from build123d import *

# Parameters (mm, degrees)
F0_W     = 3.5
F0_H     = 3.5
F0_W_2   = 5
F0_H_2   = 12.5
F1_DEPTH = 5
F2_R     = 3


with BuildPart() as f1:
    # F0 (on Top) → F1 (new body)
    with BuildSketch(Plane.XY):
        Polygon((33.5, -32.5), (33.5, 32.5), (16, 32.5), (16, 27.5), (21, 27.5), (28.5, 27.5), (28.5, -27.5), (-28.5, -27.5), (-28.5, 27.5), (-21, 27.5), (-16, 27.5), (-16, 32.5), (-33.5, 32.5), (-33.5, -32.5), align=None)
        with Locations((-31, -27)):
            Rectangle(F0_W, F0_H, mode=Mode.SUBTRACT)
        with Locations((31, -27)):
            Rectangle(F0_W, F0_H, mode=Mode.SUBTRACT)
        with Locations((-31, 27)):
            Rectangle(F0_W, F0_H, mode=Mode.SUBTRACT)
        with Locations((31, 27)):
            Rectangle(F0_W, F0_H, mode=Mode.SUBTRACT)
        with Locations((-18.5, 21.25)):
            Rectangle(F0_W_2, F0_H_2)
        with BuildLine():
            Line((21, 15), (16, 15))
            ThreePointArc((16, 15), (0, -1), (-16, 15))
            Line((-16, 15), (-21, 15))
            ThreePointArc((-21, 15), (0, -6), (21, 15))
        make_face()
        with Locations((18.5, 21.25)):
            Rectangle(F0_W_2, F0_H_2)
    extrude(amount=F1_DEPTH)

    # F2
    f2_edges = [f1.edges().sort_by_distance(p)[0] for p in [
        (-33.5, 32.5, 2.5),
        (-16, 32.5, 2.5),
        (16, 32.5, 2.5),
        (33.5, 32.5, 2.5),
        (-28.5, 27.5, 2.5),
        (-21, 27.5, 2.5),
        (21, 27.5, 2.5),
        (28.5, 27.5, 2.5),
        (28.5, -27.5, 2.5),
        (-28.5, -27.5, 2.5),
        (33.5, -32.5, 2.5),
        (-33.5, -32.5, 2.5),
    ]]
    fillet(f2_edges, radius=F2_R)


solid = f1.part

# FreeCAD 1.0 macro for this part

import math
import FreeCAD as App
import Part
import Sketcher

V = App.Vector
Q = App.Units.Quantity


def edges_at(feature, points):
    """Names of the edges that pass closest to the given points."""
    edges = feature.Shape.Edges
    near = lambda p: min(range(len(edges)), key=lambda i: edges[i].distToShape(Part.Vertex(*p))[0])
    return sorted({f"Edge{near(p) + 1}" for p in points})


def add_polygon(sketch, points):
    """Adds a closed chain of lines whose ends are joined by coincident constraints."""
    first, n = sketch.GeometryCount, len(points)
    for a, b in zip(points, points[1:] + points[:1]):
        sketch.addGeometry(Part.LineSegment(App.Vector(*a, 0), App.Vector(*b, 0)), False)
    for i in range(n):
        sketch.addConstraint(Sketcher.Constraint("Coincident", first + i, 2, first + (i + 1) % n, 1))

doc = App.newDocument("Part")
params = doc.addObject("Spreadsheet::Sheet", "Params")
for row, (alias, value) in enumerate([
    ("sketch1_radius", "16 mm"),
    ("sketch1_radius2", "21 mm"),
    ("sketch1_width", "67 mm"),
    ("sketch1_width2", "57 mm"),
    ("sketch1_height", "65 mm"),
    ("pad1_length", "5 mm"),
    ("fillet_radius", "3 mm"),
], start=1):
    params.set(f"A{row}", alias)
    params.set(f"B{row}", "=" + value)
    params.setAlias(f"B{row}", alias)

body = doc.addObject("PartDesign::Body", "Body")

sketch1 = body.newObject("Sketcher::SketchObject", "Sketch")
sketch1.AttachmentSupport = (doc.getObject("XY_Plane"), [""])
sketch1.MapMode = "FlatFace"
sketch1.addGeometry(Part.LineSegment(V(33.5, -32.5, 0), V(33.5, 32.5, 0)), False)
sketch1.addGeometry(Part.LineSegment(V(33.5, 32.5, 0), V(16, 32.5, 0)), False)
sketch1.addGeometry(Part.LineSegment(V(16, 32.5, 0), V(16, 15, 0)), False)
sketch1.addGeometry(Part.ArcOfCircle(Part.Circle(V(0, 15, 0), V(0, 0, 1), 16), math.radians(180), math.radians(360)), False)
sketch1.addGeometry(Part.LineSegment(V(-16, 15, 0), V(-16, 32.5, 0)), False)
sketch1.addGeometry(Part.LineSegment(V(-16, 32.5, 0), V(-33.5, 32.5, 0)), False)
sketch1.addGeometry(Part.LineSegment(V(-33.5, 32.5, 0), V(-33.5, -32.5, 0)), False)
sketch1.addGeometry(Part.LineSegment(V(-33.5, -32.5, 0), V(33.5, -32.5, 0)), False)
sketch1.addGeometry(Part.LineSegment(V(21, 27.5, 0), V(28.5, 27.5, 0)), False)
sketch1.addGeometry(Part.LineSegment(V(28.5, 27.5, 0), V(28.5, -27.5, 0)), False)
sketch1.addGeometry(Part.LineSegment(V(28.5, -27.5, 0), V(-28.5, -27.5, 0)), False)
sketch1.addGeometry(Part.LineSegment(V(-28.5, -27.5, 0), V(-28.5, 27.5, 0)), False)
sketch1.addGeometry(Part.LineSegment(V(-28.5, 27.5, 0), V(-21, 27.5, 0)), False)
sketch1.addGeometry(Part.LineSegment(V(-21, 27.5, 0), V(-21, 15, 0)), False)
sketch1.addGeometry(Part.ArcOfCircle(Part.Circle(V(0, 15, 0), V(0, 0, 1), 21), math.radians(180), math.radians(360)), False)
sketch1.addGeometry(Part.LineSegment(V(21, 15, 0), V(21, 27.5, 0)), False)
add_polygon(sketch1, [(-29.2, -28.8), (-32.8, -28.8), (-32.8, -25.2), (-29.2, -25.2)])
add_polygon(sketch1, [(32.8, -28.8), (29.2, -28.8), (29.2, -25.2), (32.8, -25.2)])
add_polygon(sketch1, [(-29.2, 25.2), (-32.8, 25.2), (-32.8, 28.8), (-29.2, 28.8)])
add_polygon(sketch1, [(32.8, 25.2), (29.2, 25.2), (29.2, 28.8), (32.8, 28.8)])
sketch1.addConstraint(Sketcher.Constraint("Coincident", 0, 2, 1, 1))
sketch1.addConstraint(Sketcher.Constraint("Coincident", 1, 2, 2, 1))
sketch1.addConstraint(Sketcher.Constraint("Tangent", 2, 2, 3, 2))
sketch1.addConstraint(Sketcher.Constraint("Tangent", 3, 1, 4, 1))
sketch1.addConstraint(Sketcher.Constraint("Coincident", 4, 2, 5, 1))
sketch1.addConstraint(Sketcher.Constraint("Coincident", 5, 2, 6, 1))
sketch1.addConstraint(Sketcher.Constraint("Coincident", 6, 2, 7, 1))
sketch1.addConstraint(Sketcher.Constraint("Coincident", 7, 2, 0, 1))
sketch1.addConstraint(Sketcher.Constraint("Coincident", 8, 2, 9, 1))
sketch1.addConstraint(Sketcher.Constraint("Coincident", 9, 2, 10, 1))
sketch1.addConstraint(Sketcher.Constraint("Coincident", 10, 2, 11, 1))
sketch1.addConstraint(Sketcher.Constraint("Coincident", 11, 2, 12, 1))
sketch1.addConstraint(Sketcher.Constraint("Coincident", 12, 2, 13, 1))
sketch1.addConstraint(Sketcher.Constraint("Tangent", 13, 2, 14, 1))
sketch1.addConstraint(Sketcher.Constraint("Tangent", 14, 2, 15, 1))
sketch1.addConstraint(Sketcher.Constraint("Coincident", 15, 2, 8, 1))
sketch1.addConstraint(Sketcher.Constraint("Vertical", 0))
sketch1.addConstraint(Sketcher.Constraint("Horizontal", 1))
sketch1.addConstraint(Sketcher.Constraint("Vertical", 2))
sketch1.addConstraint(Sketcher.Constraint("Vertical", 4))
sketch1.addConstraint(Sketcher.Constraint("Horizontal", 5))
sketch1.addConstraint(Sketcher.Constraint("Vertical", 6))
sketch1.addConstraint(Sketcher.Constraint("Horizontal", 7))
sketch1.addConstraint(Sketcher.Constraint("Horizontal", 8))
sketch1.addConstraint(Sketcher.Constraint("Vertical", 9))
sketch1.addConstraint(Sketcher.Constraint("Horizontal", 10))
sketch1.addConstraint(Sketcher.Constraint("Vertical", 11))
sketch1.addConstraint(Sketcher.Constraint("Horizontal", 12))
sketch1.addConstraint(Sketcher.Constraint("Vertical", 13))
sketch1.addConstraint(Sketcher.Constraint("Vertical", 15))
sketch1.addConstraint(Sketcher.Constraint("Horizontal", 16))
sketch1.addConstraint(Sketcher.Constraint("Vertical", 17))
sketch1.addConstraint(Sketcher.Constraint("Horizontal", 18))
sketch1.addConstraint(Sketcher.Constraint("Vertical", 19))
sketch1.addConstraint(Sketcher.Constraint("Horizontal", 20))
sketch1.addConstraint(Sketcher.Constraint("Vertical", 21))
sketch1.addConstraint(Sketcher.Constraint("Horizontal", 22))
sketch1.addConstraint(Sketcher.Constraint("Vertical", 23))
sketch1.addConstraint(Sketcher.Constraint("Horizontal", 24))
sketch1.addConstraint(Sketcher.Constraint("Vertical", 25))
sketch1.addConstraint(Sketcher.Constraint("Horizontal", 26))
sketch1.addConstraint(Sketcher.Constraint("Vertical", 27))
sketch1.addConstraint(Sketcher.Constraint("Horizontal", 28))
sketch1.addConstraint(Sketcher.Constraint("Vertical", 29))
sketch1.addConstraint(Sketcher.Constraint("Horizontal", 30))
sketch1.addConstraint(Sketcher.Constraint("Vertical", 31))
sketch1.addConstraint(Sketcher.Constraint("Coincident", 14, 3, 3, 3))
sketch1.addConstraint(Sketcher.Constraint("Symmetric", 0, 2, 6, 2, -1, 1))
sketch1.addConstraint(Sketcher.Constraint("Symmetric", 8, 2, 10, 2, -1, 1))
sketch1.addConstraint(Sketcher.Constraint("Symmetric", 22, 2, 24, 2, -1, 1))
sketch1.addConstraint(Sketcher.Constraint("Symmetric", 20, 2, 26, 2, -1, 1))
sketch1.addConstraint(Sketcher.Constraint("Symmetric", 18, 2, 28, 2, -1, 1))
sketch1.addConstraint(Sketcher.Constraint("Symmetric", 16, 2, 30, 2, -1, 1))
sketch1.addConstraint(Sketcher.Constraint("Symmetric", 1, 2, 4, 2, -2))
sketch1.addConstraint(Sketcher.Constraint("Symmetric", 19, 2, 20, 2, -2))
sketch1.addConstraint(Sketcher.Constraint("Symmetric", 17, 2, 22, 2, -2))
sketch1.addConstraint(Sketcher.Constraint("Horizontal", 8, 2, 11, 2))
sketch1.addConstraint(Sketcher.Constraint("Equal", 5, 2))
sketch1.addConstraint(Sketcher.Constraint("Equal", 30, 17))
sketch1.addConstraint(Sketcher.Constraint("Radius", 3, Q("16 mm")))
sketch1.addConstraint(Sketcher.Constraint("Radius", 14, Q("21 mm")))
sketch1.addConstraint(Sketcher.Constraint("DistanceX", 7, 1, 7, 2, Q("67 mm")))
sketch1.addConstraint(Sketcher.Constraint("DistanceX", 10, 2, 10, 1, Q("57 mm")))
sketch1.addConstraint(Sketcher.Constraint("DistanceY", 0, 1, 0, 2, Q("65 mm")))
sketch1.addConstraint(Sketcher.Constraint("DistanceY", 9, 2, 9, 1, Q("55 mm")))
sketch1.addConstraint(Sketcher.Constraint("DistanceX", 16, 2, 16, 1, Q("3.5 mm")))
sketch1.addConstraint(Sketcher.Constraint("DistanceX", 16, 2, -1, 1, Q("32.75 mm")))
sketch1.addConstraint(Sketcher.Constraint("DistanceY", 16, 2, -1, 1, Q("28.75 mm")))
sketch1.setExpression("Constraints[75]", "Params.sketch1_radius")
sketch1.setExpression("Constraints[76]", "Params.sketch1_radius2")
sketch1.setExpression("Constraints[77]", "Params.sketch1_width")
sketch1.setExpression("Constraints[78]", "Params.sketch1_width2")
sketch1.setExpression("Constraints[79]", "Params.sketch1_height")
pad1 = body.newObject("PartDesign::Pad", "Pad")
pad1.Profile = sketch1
pad1.setExpression("Length", "Params.pad1_length")
doc.recompute()

fillet = body.newObject("PartDesign::Fillet", "Fillet")
fillet.Base = (pad1, edges_at(pad1, [
    (-33.5, 32.5, 2.5),
    (-16, 32.5, 2.5),
    (16, 32.5, 2.5),
    (33.5, 32.5, 2.5),
    (-28.5, 27.5, 2.5),
    (-21, 27.5, 2.5),
    (21, 27.5, 2.5),
    (28.5, 27.5, 2.5),
    (28.5, -27.5, 2.5),
    (-28.5, -27.5, 2.5),
    (33.5, -32.5, 2.5),
    (-33.5, -32.5, 2.5),
]))
fillet.setExpression("Radius", "Params.fillet_radius")

doc.recompute()
